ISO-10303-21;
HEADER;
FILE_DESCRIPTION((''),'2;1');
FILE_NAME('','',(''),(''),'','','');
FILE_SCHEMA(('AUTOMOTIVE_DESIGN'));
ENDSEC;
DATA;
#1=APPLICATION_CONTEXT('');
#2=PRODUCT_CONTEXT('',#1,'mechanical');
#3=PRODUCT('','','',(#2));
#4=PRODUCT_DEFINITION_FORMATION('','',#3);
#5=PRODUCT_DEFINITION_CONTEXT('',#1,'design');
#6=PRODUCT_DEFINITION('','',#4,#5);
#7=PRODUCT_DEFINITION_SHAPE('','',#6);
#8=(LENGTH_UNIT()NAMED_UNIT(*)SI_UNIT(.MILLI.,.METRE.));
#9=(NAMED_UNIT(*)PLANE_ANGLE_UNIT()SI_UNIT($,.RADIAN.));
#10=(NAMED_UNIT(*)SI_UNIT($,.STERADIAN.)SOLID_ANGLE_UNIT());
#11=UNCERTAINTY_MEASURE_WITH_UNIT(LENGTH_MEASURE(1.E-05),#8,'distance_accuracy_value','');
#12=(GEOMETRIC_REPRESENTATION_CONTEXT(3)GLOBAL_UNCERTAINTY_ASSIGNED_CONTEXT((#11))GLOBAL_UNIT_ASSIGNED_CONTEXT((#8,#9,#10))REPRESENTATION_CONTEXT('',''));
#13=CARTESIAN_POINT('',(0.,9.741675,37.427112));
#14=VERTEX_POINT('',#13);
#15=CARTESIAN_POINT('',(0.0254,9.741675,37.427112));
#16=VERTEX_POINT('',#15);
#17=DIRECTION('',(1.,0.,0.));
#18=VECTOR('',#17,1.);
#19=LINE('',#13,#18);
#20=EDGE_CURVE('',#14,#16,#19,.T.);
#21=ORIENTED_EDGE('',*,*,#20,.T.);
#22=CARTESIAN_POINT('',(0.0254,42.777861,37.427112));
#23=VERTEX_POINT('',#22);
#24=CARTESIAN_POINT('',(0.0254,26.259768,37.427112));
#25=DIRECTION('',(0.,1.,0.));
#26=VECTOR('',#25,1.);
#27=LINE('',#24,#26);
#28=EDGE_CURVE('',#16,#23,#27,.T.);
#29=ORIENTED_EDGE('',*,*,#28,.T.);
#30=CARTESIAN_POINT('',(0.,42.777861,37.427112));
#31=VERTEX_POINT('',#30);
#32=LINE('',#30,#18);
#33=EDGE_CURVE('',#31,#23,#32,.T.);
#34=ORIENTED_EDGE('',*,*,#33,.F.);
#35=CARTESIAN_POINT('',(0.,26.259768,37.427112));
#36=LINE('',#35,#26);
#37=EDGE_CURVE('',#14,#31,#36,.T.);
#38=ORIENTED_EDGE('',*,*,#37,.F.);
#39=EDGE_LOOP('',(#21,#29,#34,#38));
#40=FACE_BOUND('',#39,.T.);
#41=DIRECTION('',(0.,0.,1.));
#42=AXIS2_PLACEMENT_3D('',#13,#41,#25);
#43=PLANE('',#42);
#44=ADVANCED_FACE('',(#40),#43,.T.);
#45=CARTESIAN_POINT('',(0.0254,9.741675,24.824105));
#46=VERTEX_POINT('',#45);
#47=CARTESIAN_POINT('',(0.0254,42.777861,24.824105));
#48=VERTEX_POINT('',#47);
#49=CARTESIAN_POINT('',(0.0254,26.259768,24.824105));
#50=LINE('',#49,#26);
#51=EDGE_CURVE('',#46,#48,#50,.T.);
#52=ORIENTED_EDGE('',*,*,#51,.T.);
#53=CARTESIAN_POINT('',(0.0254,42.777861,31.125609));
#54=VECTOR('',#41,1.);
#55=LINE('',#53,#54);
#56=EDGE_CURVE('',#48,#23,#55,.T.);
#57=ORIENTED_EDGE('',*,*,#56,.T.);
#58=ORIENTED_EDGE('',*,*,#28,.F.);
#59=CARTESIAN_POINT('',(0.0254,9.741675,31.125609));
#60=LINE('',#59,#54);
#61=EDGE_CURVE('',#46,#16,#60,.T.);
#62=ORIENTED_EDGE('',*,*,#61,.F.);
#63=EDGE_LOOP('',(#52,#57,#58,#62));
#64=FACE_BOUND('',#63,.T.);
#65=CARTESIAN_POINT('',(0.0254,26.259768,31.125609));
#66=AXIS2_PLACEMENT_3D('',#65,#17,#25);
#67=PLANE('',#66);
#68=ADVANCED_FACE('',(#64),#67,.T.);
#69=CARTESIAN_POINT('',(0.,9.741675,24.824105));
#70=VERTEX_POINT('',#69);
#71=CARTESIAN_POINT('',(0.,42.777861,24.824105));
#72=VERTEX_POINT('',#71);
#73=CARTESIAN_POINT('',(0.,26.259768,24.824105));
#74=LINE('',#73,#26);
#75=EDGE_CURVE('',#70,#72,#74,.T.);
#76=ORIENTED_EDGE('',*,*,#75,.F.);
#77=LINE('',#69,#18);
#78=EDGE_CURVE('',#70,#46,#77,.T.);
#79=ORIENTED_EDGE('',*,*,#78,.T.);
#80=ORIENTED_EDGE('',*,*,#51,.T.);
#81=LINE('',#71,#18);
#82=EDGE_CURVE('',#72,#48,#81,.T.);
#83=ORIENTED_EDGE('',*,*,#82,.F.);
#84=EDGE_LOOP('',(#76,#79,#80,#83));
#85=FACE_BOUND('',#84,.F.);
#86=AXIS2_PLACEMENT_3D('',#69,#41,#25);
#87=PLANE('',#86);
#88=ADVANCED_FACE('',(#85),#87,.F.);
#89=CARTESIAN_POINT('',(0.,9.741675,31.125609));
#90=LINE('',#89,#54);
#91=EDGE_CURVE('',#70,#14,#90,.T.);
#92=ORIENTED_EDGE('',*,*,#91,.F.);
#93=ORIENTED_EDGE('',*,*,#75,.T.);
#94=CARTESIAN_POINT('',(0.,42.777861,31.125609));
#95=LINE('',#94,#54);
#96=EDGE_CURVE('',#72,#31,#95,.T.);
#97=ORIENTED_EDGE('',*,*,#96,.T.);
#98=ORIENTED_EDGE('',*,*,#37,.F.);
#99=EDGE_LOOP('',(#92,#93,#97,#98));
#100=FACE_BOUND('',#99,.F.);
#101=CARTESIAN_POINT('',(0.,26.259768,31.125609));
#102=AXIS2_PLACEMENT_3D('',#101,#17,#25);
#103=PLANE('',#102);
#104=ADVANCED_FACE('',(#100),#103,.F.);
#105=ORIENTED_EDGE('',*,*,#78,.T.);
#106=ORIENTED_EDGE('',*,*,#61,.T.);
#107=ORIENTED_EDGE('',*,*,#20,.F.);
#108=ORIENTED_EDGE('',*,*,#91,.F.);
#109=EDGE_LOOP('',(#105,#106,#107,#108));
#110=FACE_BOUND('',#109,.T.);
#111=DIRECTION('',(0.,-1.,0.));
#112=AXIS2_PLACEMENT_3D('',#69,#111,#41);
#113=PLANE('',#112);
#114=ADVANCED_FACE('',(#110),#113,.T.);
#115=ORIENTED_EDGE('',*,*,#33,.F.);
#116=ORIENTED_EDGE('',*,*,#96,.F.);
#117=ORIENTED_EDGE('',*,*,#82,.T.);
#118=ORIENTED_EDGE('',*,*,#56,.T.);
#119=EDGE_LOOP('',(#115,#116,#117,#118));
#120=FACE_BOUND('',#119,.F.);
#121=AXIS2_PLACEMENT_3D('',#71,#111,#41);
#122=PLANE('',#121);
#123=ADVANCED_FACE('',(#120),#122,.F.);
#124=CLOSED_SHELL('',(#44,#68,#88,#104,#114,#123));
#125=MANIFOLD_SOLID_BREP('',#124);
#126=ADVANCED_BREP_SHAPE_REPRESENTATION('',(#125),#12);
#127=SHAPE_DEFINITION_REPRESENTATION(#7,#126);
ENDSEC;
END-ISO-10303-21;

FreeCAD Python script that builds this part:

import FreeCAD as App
import Part
import Sketcher
Q = App.Units.Quantity

doc = App.newDocument("Part")
body = doc.addObject("PartDesign::Body", "Body")

# Sketch on YZ plane
sketch1 = body.newObject("Sketcher::SketchObject", "Sketch")
sketch1.AttachmentSupport = (doc.getObject("YZ_Plane"), [""])
sketch1.MapMode = "FlatFace"
sketch1.addGeometry(Part.LineSegment(App.Vector(-43, 34, 0), App.Vector(-55, 34, 0)), False)
sketch1.addGeometry(Part.LineSegment(App.Vector(-55, 34, 0), App.Vector(-55, 23, 0)), False)
sketch1.addGeometry(Part.LineSegment(App.Vector(-55, 23, 0), App.Vector(-43, 23, 0)), False)
sketch1.addGeometry(Part.LineSegment(App.Vector(-43, 23, 0), App.Vector(-43, 34, 0)), False)
sketch1.addConstraint(Sketcher.Constraint("Coincident", 0, 2, 1, 1))
sketch1.addConstraint(Sketcher.Constraint("Coincident", 1, 2, 2, 1))
sketch1.addConstraint(Sketcher.Constraint("Coincident", 2, 2, 3, 1))
sketch1.addConstraint(Sketcher.Constraint("Coincident", 3, 2, 0, 1))
sketch1.addConstraint(Sketcher.Constraint("Horizontal", 0))
sketch1.addConstraint(Sketcher.Constraint("Horizontal", 2))
sketch1.addConstraint(Sketcher.Constraint("Vertical", 3))
sketch1.addConstraint(Sketcher.Constraint("DistanceX", 0, 2, 0, 1, Q("12.793962 mm")))
sketch1.addConstraint(Sketcher.Constraint("DistanceX", 2, 1, 2, 2, Q("12.412053 mm")))
sketch1.addConstraint(Sketcher.Constraint("DistanceY", 3, 1, 3, 2, Q("10.502504 mm")))
sketch1.addConstraint(Sketcher.Constraint("DistanceX", 0, 2, -1, 1, Q("55.37685 mm")))
sketch1.addConstraint(Sketcher.Constraint("DistanceY", -1, 1, 1, 2, Q("23.29647 mm")))
pad1 = body.newObject("PartDesign::Pad", "Pad")
pad1.Profile = sketch1
pad1.Length = Q("0.001 in")
body2 = doc.addObject("PartDesign::Body", "Body001")

# Sketch on YZ plane
sketch2 = body2.newObject("Sketcher::SketchObject", "Sketch001")
sketch2.AttachmentSupport = (doc.getObject("YZ_Plane001"), [""])
sketch2.MapMode = "FlatFace"
sketch2.addGeometry(Part.LineSegment(App.Vector(-16, 37, 0), App.Vector(-30, 37, 0)), False)
sketch2.addGeometry(Part.LineSegment(App.Vector(-30, 37, 0), App.Vector(-30, 24, 0)), False)
sketch2.addGeometry(Part.LineSegment(App.Vector(-30, 24, 0), App.Vector(-15, 24, 0)), False)
sketch2.addGeometry(Part.LineSegment(App.Vector(-15, 24, 0), App.Vector(-16, 37, 0)), False)
sketch2.addConstraint(Sketcher.Constraint("Coincident", 0, 2, 1, 1))
sketch2.addConstraint(Sketcher.Constraint("Coincident", 1, 2, 2, 1))
sketch2.addConstraint(Sketcher.Constraint("Coincident", 2, 2, 3, 1))
sketch2.addConstraint(Sketcher.Constraint("Coincident", 3, 2, 0, 1))
sketch2.addConstraint(Sketcher.Constraint("Horizontal", 0))
sketch2.addConstraint(Sketcher.Constraint("Vertical", 1))
sketch2.addConstraint(Sketcher.Constraint("Horizontal", 2))
sketch2.addConstraint(Sketcher.Constraint("DistanceX", 0, 2, 0, 1, Q("14.321599 mm")))
sketch2.addConstraint(Sketcher.Constraint("DistanceX", 2, 1, 2, 2, Q("14.703508 mm")))
sketch2.addConstraint(Sketcher.Constraint("Distance", 3, Q("13.754038 mm")))
sketch2.addConstraint(Sketcher.Constraint("DistanceX", 0, 2, -1, 1, Q("30.170836 mm")))
sketch2.addConstraint(Sketcher.Constraint("DistanceY", -1, 1, 0, 2, Q("37.427112 mm")))
pad2 = body2.newObject("PartDesign::Pad", "Pad001")
pad2.Profile = sketch2
pad2.Length = Q("0.001 in")
body3 = doc.addObject("PartDesign::Body", "Body002")

# Sketch on YZ plane
sketch3 = body3.newObject("Sketcher::SketchObject", "Sketch002")
sketch3.AttachmentSupport = (doc.getObject("YZ_Plane002"), [""])
sketch3.MapMode = "FlatFace"
sketch3.addGeometry(Part.LineSegment(App.Vector(10, 37, 0), App.Vector(10, 25, 0)), False)
sketch3.addGeometry(Part.LineSegment(App.Vector(10, 25, 0), App.Vector(43, 25, 0)), False)
sketch3.addGeometry(Part.LineSegment(App.Vector(43, 25, 0), App.Vector(43, 37, 0)), False)
sketch3.addGeometry(Part.LineSegment(App.Vector(43, 37, 0), App.Vector(10, 37, 0)), False)
sketch3.addConstraint(Sketcher.Constraint("Coincident", 0, 2, 1, 1))
sketch3.addConstraint(Sketcher.Constraint("Coincident", 1, 2, 2, 1))
sketch3.addConstraint(Sketcher.Constraint("Coincident", 2, 2, 3, 1))
sketch3.addConstraint(Sketcher.Constraint("Coincident", 3, 2, 0, 1))
sketch3.addConstraint(Sketcher.Constraint("Vertical", 0))
sketch3.addConstraint(Sketcher.Constraint("Horizontal", 1))
sketch3.addConstraint(Sketcher.Constraint("Vertical", 2))
sketch3.addConstraint(Sketcher.Constraint("Horizontal", 3))
sketch3.addConstraint(Sketcher.Constraint("DistanceX", 1, 1, 1, 2, Q("33.036185 mm")))
sketch3.addConstraint(Sketcher.Constraint("DistanceY", 0, 2, 0, 1, Q("12.603007 mm")))
sketch3.addConstraint(Sketcher.Constraint("DistanceX", -1, 1, 1, 2, Q("42.777861 mm")))
sketch3.addConstraint(Sketcher.Constraint("DistanceY", -1, 1, 0, 2, Q("24.824105 mm")))
pad3 = body3.newObject("PartDesign::Pad", "Pad002")
pad3.Profile = sketch3
pad3.Length = Q("0.001 in")
body.Visibility = False
body2.Visibility = False

doc.recompute()
